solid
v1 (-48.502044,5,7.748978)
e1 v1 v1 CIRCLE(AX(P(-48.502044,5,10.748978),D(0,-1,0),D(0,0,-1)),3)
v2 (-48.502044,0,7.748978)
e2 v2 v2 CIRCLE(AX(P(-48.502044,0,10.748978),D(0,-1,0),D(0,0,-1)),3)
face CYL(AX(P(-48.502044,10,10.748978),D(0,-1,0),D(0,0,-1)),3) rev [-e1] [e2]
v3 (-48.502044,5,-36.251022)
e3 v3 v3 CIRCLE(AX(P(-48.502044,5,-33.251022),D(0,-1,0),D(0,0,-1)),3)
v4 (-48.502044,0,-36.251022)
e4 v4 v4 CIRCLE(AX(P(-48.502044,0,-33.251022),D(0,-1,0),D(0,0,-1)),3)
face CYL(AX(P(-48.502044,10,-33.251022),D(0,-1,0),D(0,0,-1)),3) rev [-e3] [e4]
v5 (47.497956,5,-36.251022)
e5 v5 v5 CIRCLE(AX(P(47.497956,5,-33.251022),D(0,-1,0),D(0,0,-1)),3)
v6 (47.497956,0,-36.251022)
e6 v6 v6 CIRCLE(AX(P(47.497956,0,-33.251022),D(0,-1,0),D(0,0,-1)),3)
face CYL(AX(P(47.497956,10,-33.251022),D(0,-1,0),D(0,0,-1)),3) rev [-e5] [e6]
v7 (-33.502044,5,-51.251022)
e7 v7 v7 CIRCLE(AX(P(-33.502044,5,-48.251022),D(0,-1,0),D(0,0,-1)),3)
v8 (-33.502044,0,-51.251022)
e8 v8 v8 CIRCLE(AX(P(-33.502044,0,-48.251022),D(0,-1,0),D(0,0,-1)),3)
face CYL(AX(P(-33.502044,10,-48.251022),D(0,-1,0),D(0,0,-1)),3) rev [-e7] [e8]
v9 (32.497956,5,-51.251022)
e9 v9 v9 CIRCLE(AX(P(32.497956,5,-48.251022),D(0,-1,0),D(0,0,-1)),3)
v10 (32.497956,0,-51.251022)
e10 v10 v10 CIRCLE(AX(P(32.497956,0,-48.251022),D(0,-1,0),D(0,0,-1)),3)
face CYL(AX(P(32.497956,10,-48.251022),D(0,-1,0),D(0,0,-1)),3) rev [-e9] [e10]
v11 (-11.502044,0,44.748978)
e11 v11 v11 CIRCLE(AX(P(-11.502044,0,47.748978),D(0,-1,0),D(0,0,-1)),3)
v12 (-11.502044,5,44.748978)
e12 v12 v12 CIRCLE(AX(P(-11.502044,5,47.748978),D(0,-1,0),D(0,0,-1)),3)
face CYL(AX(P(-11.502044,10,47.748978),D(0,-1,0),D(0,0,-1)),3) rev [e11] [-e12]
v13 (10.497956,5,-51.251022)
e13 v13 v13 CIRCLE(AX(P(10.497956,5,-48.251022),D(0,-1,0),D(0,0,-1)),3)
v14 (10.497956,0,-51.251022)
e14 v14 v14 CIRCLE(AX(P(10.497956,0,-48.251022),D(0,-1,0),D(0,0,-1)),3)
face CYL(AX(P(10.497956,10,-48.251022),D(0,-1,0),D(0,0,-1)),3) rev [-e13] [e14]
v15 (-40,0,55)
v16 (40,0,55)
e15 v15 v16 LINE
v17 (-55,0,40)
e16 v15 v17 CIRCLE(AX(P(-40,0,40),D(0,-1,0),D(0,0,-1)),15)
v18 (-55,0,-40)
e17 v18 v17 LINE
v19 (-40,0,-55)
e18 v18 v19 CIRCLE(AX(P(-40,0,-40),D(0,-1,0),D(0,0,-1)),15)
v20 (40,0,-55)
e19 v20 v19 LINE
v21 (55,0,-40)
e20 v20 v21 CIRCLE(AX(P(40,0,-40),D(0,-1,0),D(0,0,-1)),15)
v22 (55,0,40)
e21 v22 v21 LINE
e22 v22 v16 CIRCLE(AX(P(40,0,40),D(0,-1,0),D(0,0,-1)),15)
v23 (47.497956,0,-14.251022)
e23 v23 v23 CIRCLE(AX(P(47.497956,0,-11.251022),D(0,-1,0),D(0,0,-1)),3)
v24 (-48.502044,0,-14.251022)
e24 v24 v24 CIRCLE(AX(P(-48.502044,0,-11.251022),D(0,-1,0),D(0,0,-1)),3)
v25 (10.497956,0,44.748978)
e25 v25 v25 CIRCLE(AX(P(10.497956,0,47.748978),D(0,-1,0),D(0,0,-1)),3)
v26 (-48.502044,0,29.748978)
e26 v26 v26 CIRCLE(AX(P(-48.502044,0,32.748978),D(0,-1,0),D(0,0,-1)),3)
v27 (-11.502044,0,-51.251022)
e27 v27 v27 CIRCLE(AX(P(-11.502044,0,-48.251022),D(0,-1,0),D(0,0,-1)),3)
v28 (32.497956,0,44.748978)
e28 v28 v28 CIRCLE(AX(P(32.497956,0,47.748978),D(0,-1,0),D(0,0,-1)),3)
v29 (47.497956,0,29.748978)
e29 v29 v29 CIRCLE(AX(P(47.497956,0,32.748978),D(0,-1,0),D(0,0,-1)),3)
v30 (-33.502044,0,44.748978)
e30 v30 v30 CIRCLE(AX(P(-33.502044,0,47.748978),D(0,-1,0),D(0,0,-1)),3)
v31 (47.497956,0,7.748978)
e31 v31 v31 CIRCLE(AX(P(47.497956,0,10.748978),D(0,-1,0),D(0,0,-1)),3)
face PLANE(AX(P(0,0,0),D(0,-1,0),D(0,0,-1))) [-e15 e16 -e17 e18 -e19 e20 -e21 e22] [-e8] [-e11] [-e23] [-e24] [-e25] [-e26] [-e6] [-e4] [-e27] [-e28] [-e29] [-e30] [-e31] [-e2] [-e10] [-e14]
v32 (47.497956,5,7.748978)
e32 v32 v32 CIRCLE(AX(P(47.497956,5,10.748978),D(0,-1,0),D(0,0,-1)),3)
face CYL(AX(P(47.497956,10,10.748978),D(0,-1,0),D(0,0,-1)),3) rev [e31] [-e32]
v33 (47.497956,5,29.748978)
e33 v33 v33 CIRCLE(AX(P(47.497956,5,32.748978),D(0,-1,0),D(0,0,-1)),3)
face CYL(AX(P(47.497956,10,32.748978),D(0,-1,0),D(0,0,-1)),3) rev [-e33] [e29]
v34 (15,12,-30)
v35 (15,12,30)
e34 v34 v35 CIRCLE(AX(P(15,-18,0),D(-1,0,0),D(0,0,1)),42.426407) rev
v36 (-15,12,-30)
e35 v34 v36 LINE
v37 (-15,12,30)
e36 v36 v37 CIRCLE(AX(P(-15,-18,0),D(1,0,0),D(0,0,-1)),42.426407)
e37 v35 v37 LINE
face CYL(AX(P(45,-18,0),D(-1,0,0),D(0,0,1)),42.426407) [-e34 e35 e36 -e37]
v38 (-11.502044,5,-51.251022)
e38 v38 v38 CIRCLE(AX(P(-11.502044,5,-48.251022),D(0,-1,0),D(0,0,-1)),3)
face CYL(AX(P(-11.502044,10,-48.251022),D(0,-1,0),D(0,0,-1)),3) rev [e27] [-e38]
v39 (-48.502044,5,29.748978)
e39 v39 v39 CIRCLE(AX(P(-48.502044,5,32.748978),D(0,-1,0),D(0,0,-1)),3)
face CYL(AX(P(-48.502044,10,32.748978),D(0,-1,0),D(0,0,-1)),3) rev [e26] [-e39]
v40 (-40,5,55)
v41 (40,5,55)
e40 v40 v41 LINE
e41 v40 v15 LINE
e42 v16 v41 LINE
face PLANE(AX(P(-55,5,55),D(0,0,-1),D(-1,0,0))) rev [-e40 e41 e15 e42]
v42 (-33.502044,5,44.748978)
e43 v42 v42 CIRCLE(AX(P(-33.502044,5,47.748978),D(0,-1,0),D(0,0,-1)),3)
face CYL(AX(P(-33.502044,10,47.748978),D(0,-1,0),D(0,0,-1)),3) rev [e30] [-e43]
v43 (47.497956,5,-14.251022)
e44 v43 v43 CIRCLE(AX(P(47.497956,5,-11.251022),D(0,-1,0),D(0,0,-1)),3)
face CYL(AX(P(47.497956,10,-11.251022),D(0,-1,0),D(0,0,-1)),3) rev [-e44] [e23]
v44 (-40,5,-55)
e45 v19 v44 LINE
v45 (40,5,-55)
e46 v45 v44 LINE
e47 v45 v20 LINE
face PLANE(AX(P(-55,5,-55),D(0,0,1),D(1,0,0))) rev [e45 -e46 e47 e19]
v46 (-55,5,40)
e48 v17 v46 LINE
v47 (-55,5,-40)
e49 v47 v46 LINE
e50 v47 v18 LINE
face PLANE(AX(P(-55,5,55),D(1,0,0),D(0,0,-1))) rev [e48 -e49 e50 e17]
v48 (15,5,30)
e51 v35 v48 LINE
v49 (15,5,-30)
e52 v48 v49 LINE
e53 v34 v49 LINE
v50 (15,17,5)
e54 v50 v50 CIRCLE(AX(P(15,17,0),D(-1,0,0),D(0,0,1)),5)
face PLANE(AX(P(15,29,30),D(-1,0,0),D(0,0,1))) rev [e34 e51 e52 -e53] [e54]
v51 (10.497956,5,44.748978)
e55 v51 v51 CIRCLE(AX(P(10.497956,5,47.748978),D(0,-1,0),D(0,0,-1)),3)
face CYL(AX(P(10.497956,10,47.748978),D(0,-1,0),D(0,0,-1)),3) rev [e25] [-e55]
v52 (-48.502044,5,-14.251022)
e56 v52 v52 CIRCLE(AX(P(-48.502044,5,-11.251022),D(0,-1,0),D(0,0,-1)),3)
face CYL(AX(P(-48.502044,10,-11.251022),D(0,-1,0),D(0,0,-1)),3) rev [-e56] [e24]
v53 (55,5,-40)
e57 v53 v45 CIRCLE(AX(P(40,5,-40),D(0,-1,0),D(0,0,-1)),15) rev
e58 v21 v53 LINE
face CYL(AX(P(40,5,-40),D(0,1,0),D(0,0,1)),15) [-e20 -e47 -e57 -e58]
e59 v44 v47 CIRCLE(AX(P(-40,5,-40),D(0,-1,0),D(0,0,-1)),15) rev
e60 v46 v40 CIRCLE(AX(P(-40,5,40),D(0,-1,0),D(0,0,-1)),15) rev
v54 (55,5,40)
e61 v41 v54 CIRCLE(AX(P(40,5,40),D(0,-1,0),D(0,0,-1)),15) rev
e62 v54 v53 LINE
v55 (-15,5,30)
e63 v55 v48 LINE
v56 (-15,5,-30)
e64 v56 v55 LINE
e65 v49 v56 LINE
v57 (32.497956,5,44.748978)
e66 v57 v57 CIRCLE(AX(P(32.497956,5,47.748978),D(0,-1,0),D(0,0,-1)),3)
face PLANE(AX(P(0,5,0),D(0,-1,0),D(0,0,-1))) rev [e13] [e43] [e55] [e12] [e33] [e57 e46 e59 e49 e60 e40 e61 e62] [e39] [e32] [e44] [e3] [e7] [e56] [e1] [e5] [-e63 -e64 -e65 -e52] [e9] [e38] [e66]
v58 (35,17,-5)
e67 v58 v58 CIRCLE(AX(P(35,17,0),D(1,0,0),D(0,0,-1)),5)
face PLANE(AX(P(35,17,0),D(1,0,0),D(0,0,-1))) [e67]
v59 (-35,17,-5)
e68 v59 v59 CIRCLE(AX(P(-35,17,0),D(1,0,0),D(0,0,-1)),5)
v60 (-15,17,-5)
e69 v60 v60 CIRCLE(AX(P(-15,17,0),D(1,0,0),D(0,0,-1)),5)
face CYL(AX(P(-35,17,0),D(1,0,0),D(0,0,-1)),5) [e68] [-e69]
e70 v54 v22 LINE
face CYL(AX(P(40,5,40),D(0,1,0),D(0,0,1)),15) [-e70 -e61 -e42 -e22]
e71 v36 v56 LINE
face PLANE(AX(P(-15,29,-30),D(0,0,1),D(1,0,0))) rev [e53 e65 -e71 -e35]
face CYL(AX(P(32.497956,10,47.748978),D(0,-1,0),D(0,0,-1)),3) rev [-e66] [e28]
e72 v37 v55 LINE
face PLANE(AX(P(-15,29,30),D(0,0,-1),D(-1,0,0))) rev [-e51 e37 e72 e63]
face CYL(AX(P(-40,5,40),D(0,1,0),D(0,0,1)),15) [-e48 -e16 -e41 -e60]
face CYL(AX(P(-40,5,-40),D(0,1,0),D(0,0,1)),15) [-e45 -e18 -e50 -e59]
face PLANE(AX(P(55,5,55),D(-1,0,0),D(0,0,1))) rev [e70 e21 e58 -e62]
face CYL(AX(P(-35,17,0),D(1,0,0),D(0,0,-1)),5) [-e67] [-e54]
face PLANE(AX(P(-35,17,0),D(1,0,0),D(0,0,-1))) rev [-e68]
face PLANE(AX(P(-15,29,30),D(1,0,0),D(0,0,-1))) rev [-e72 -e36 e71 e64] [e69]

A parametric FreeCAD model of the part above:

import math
import FreeCAD as App
import Part
import Sketcher
from FreeCAD import Vector


def edges_at(feature, points):
    """Names of the edges that pass closest to the given points."""
    edges = feature.Shape.Edges
    near = lambda p: min(range(len(edges)), key=lambda i: edges[i].distToShape(Part.Vertex(*p))[0])
    return sorted({f"Edge{near(p) + 1}" for p in points})

doc = App.newDocument("Part")
body = doc.addObject("PartDesign::Body", "Body")

sketch1 = doc.addObject("Sketcher::SketchObject", "Sketch")
body.addObject(sketch1)
sketch1.AttachmentSupport = (doc.XZ_Plane, [""])
sketch1.MapMode = "FlatFace"
sketch1.addGeometry([
    Part.LineSegment(Vector(-55, -55, 0), Vector(-55, 55, 0)),
    Part.LineSegment(Vector(-55, 55, 0), Vector(55, 55, 0)),
    Part.LineSegment(Vector(55, 55, 0), Vector(55, -55, 0)),
    Part.LineSegment(Vector(55, -55, 0), Vector(-55, -55, 0)),
], False)
sketch1.addConstraint([
    Sketcher.Constraint("Coincident", 0, 2, 1, 1),
    Sketcher.Constraint("Coincident", 1, 2, 2, 1),
    Sketcher.Constraint("Coincident", 2, 2, 3, 1),
    Sketcher.Constraint("Coincident", 3, 2, 0, 1),
    Sketcher.Constraint("Vertical", 0),
    Sketcher.Constraint("Horizontal", 1),
    Sketcher.Constraint("Vertical", 2),
    Sketcher.Constraint("Horizontal", 3),
    Sketcher.Constraint("Symmetric", 0, 2, 2, 2, -1, 1),
    Sketcher.Constraint("Equal", 3, 0),
    Sketcher.Constraint("DistanceX", 1, 1, 1, 2, 110.0),
])
pad1 = doc.addObject("PartDesign::Pad", "Pad")
body.addObject(pad1)
pad1.Profile = sketch1
pad1.Length = 5
pad1.Reversed = True
doc.recompute()

fillet = doc.addObject("PartDesign::Fillet", "Fillet")
body.addObject(fillet)
fillet.Base = (pad1, edges_at(pad1, [(55, 2.5, -55)]))
fillet.Radius = 15
doc.recompute()

fillet2 = doc.addObject("PartDesign::Fillet", "Fillet001")
body.addObject(fillet2)
fillet2.Base = (fillet, edges_at(fillet, [(-55, 2.5, -55)]))
fillet2.Radius = 15
doc.recompute()

fillet3 = doc.addObject("PartDesign::Fillet", "Fillet002")
body.addObject(fillet3)
fillet3.Base = (fillet2, edges_at(fillet2, [(-55, 2.5, 55)]))
fillet3.Radius = 15
doc.recompute()

fillet4 = doc.addObject("PartDesign::Fillet", "Fillet003")
body.addObject(fillet4)
fillet4.Base = (fillet3, edges_at(fillet3, [(55, 2.5, 55)]))
fillet4.Radius = 15

sketch2 = doc.addObject("Sketcher::SketchObject", "Sketch001")
body.addObject(sketch2)
sketch2.AttachmentSupport = (doc.XZ_Plane, [""])
sketch2.MapMode = "FlatFace"
sketch2.AttachmentOffset = App.Placement(Vector(0, 0, -5), App.Rotation())
sketch2.addGeometry([
    Part.LineSegment(Vector(-15, -30, 0), Vector(-15, 30, 0)),
    Part.LineSegment(Vector(-15, 30, 0), Vector(15, 30, 0)),
    Part.LineSegment(Vector(15, 30, 0), Vector(15, -30, 0)),
    Part.LineSegment(Vector(15, -30, 0), Vector(-15, -30, 0)),
], False)
sketch2.addConstraint([
    Sketcher.Constraint("Coincident", 0, 2, 1, 1),
    Sketcher.Constraint("Coincident", 1, 2, 2, 1),
    Sketcher.Constraint("Coincident", 2, 2, 3, 1),
    Sketcher.Constraint("Coincident", 3, 2, 0, 1),
    Sketcher.Constraint("Vertical", 0),
    Sketcher.Constraint("Horizontal", 1),
    Sketcher.Constraint("Vertical", 2),
    Sketcher.Constraint("Horizontal", 3),
    Sketcher.Constraint("Symmetric", 0, 2, 2, 2, -1, 1),
    Sketcher.Constraint("DistanceX", 1, 1, 1, 2, 30.0),
    Sketcher.Constraint("DistanceY", 0, 1, 0, 2, 60.0),
])
pad2 = doc.addObject("PartDesign::Pad", "Pad001")
body.addObject(pad2)
pad2.Profile = sketch2
pad2.Length = 24
pad2.Reversed = True

sketch3 = doc.addObject("Sketcher::SketchObject", "Sketch002")
body.addObject(sketch3)
sketch3.AttachmentSupport = (doc.YZ_Plane, [""])
sketch3.MapMode = "FlatFace"
sketch3.AttachmentOffset = App.Placement(Vector(0, 0, 15), App.Rotation())
sketch3.addGeometry(Part.Circle(Vector(17, 0, 0), Vector(0, 0, 1), 5), False)
sketch3.addConstraint([
    Sketcher.Constraint("PointOnObject", 0, 3, -1),
    Sketcher.Constraint("Diameter", 0, 10.0),
    Sketcher.Constraint("DistanceX", -1, 1, 0, 3, 17.0),
])
pad3 = doc.addObject("PartDesign::Pad", "Pad002")
body.addObject(pad3)
pad3.Profile = sketch3
pad3.Type = "TwoLengths"
pad3.Length = 20
pad3.Length2 = 50
doc.recompute()

fillet5 = doc.addObject("PartDesign::Fillet", "Fillet004")
body.addObject(fillet5)
fillet5.Base = (pad3, edges_at(pad3, [(0, 29, 30)]))
fillet5.Radius = 10
doc.recompute()

fillet6 = doc.addObject("PartDesign::Fillet", "Fillet005")
body.addObject(fillet6)
fillet6.Base = (fillet5, edges_at(fillet5, [(0, 29, -30)]))
fillet6.Radius = 10

sketch4 = doc.addObject("Sketcher::SketchObject", "Sketch003")
body.addObject(sketch4)
sketch4.AttachmentSupport = (doc.XZ_Plane, [""])
sketch4.MapMode = "FlatFace"
sketch4.addGeometry([
    Part.Circle(Vector(47.5, -11.3, 0), Vector(0, 0, 1), 3),
    Part.Circle(Vector(47.5, 32.7, 0), Vector(0, 0, 1), 3),
    Part.Circle(Vector(-48.5, 10.7, 0), Vector(0, 0, 1), 3),
    Part.Circle(Vector(-48.5, -11.3, 0), Vector(0, 0, 1), 3),
    Part.Circle(Vector(-48.5, -33.3, 0), Vector(0, 0, 1), 3),
    Part.Circle(Vector(-33.5, -48.3, 0), Vector(0, 0, 1), 3),
    Part.Circle(Vector(-11.5, -48.3, 0), Vector(0, 0, 1), 3),
    Part.Circle(Vector(10.5, -48.3, 0), Vector(0, 0, 1), 3),
    Part.Circle(Vector(32.5, -48.3, 0), Vector(0, 0, 1), 3),
    Part.Circle(Vector(47.5, -33.3, 0), Vector(0, 0, 1), 3),
    Part.Circle(Vector(47.5, 10.7, 0), Vector(0, 0, 1), 3),
    Part.Circle(Vector(32.5, 47.7, 0), Vector(0, 0, 1), 3),
    Part.Circle(Vector(10.5, 47.7, 0), Vector(0, 0, 1), 3),
    Part.Circle(Vector(-11.5, 47.7, 0), Vector(0, 0, 1), 3),
    Part.Circle(Vector(-33.5, 47.7, 0), Vector(0, 0, 1), 3),
    Part.Circle(Vector(-48.5, 32.7, 0), Vector(0, 0, 1), 3),
], False)
sketch4.addConstraint([
    Sketcher.Constraint("Equal", 0, 1),
    Sketcher.Constraint("Equal", 1, 2),
    Sketcher.Constraint("Equal", 2, 3),
    Sketcher.Constraint("Equal", 3, 4),
    Sketcher.Constraint("Equal", 4, 5),
    Sketcher.Constraint("Equal", 5, 6),
    Sketcher.Constraint("Equal", 6, 7),
    Sketcher.Constraint("Equal", 7, 8),
    Sketcher.Constraint("Equal", 8, 9),
    Sketcher.Constraint("Equal", 9, 10),
    Sketcher.Constraint("Equal", 10, 11),
    Sketcher.Constraint("Equal", 11, 12),
    Sketcher.Constraint("Equal", 12, 13),
    Sketcher.Constraint("Equal", 13, 14),
    Sketcher.Constraint("Equal", 14, 15),
    Sketcher.Constraint("Horizontal", 0, 3, 3, 3),
    Sketcher.Constraint("Horizontal", 5, 3, 6, 3),
    Sketcher.Constraint("Horizontal", 6, 3, 7, 3),
    Sketcher.Constraint("Horizontal", 7, 3, 8, 3),
    Sketcher.Constraint("Horizontal", 4, 3, 9, 3),
    Sketcher.Constraint("Horizontal", 2, 3, 10, 3),
    Sketcher.Constraint("Horizontal", 11, 3, 12, 3),
    Sketcher.Constraint("Horizontal", 12, 3, 13, 3),
    Sketcher.Constraint("Horizontal", 13, 3, 14, 3),
    Sketcher.Constraint("Horizontal", 1, 3, 15, 3),
    Sketcher.Constraint("Vertical", 0, 3, 1, 3),
    Sketcher.Constraint("Vertical", 2, 3, 3, 3),
    Sketcher.Constraint("Vertical", 3, 3, 4, 3),
    Sketcher.Constraint("Vertical", 1, 3, 9, 3),
    Sketcher.Constraint("Vertical", 9, 3, 10, 3),
    Sketcher.Constraint("Vertical", 8, 3, 11, 3),
    Sketcher.Constraint("Vertical", 7, 3, 12, 3),
    Sketcher.Constraint("Vertical", 6, 3, 13, 3),
    Sketcher.Constraint("Vertical", 5, 3, 14, 3),
    Sketcher.Constraint("Vertical", 4, 3, 15, 3),
    Sketcher.Constraint("Diameter", 0, 6.0),
    Sketcher.Constraint("DistanceY", 0, 3, 1, 3, 44.0),
    Sketcher.Constraint("DistanceX", 2, 3, 0, 3, 96.0),
    Sketcher.Constraint("DistanceY", 0, 3, 2, 3, 22.0),
    Sketcher.Constraint("DistanceY", 4, 3, 3, 3, 22.0),
    Sketcher.Constraint("DistanceX", 4, 3, 5, 3, 15.0),
    Sketcher.Constraint("DistanceY", 5, 3, 4, 3, 15.0),
    Sketcher.Constraint("DistanceX", 5, 3, 6, 3, 22.0),
    Sketcher.Constraint("DistanceX", 6, 3, 7, 3, 22.0),
    Sketcher.Constraint("DistanceX", 7, 3, 8, 3, 22.0),
    Sketcher.Constraint("DistanceY", 1, 3, 11, 3, 15.0),
    Sketcher.Constraint("DistanceX", -1, 1, 0, 3, 47.497956),
    Sketcher.Constraint("DistanceY", 0, 3, -1, 1, 11.251022),
])
pocket1 = doc.addObject("PartDesign::Pocket", "Pocket")
body.addObject(pocket1)
pocket1.Profile = sketch4
pocket1.Length = 10

sketch5 = doc.addObject("Sketcher::SketchObject", "Sketch004")
body.addObject(sketch5)
sketch5.AttachmentSupport = (doc.YZ_Plane, [""])
sketch5.MapMode = "FlatFace"
sketch5.AttachmentOffset = App.Placement(Vector(0, 0, -15), App.Rotation())
sketch5.addGeometry([
    Part.LineSegment(Vector(19, -30, 0), Vector(12, -30, 0)),
    Part.ArcOfCircle(Part.Circle(Vector(-18, 0, 0), Vector(0, 0, 1), 42), math.radians(-45), math.radians(45)),
    Part.LineSegment(Vector(12, 30, 0), Vector(19, 30, 0)),
    Part.ArcOfCircle(Part.Circle(Vector(19, 20, 0), Vector(0, 0, 1), 10), math.radians(0), math.radians(90)),
    Part.LineSegment(Vector(29, 20, 0), Vector(29, -20, 0)),
    Part.ArcOfCircle(Part.Circle(Vector(19, -20, 0), Vector(0, 0, 1), 10), math.radians(-90), math.radians(0)),
], False)
sketch5.addConstraint([
    Sketcher.Constraint("Coincident", 0, 2, 1, 1),
    Sketcher.Constraint("Coincident", 1, 2, 2, 1),
    Sketcher.Constraint("Tangent", 2, 2, 3, 2),
    Sketcher.Constraint("Tangent", 3, 1, 4, 1),
    Sketcher.Constraint("Tangent", 4, 2, 5, 2),
    Sketcher.Constraint("Tangent", 5, 1, 0, 1),
    Sketcher.Constraint("Horizontal", 0),
    Sketcher.Constraint("Horizontal", 2),
    Sketcher.Constraint("Vertical", 4),
    Sketcher.Constraint("Equal", 3, 5),
    Sketcher.Constraint("Symmetric", 0, 2, 1, 2, -1),
    Sketcher.Constraint("Radius", 3, 10.0),
    Sketcher.Constraint("DistanceX", 0, 2, 0, 1, 7.0),
    Sketcher.Constraint("DistanceY", 4, 2, 4, 1, 40.0),
    Sketcher.Constraint("DistanceX", 1, 3, -1, 1, 18.0),
    Sketcher.Constraint("DistanceX", -1, 1, 3, 3, 19.0),
])
pocket2 = doc.addObject("PartDesign::Pocket", "Pocket001")
body.addObject(pocket2)
pocket2.Profile = sketch5
pocket2.Length = 60
pocket2.Reversed = True

doc.recompute()
